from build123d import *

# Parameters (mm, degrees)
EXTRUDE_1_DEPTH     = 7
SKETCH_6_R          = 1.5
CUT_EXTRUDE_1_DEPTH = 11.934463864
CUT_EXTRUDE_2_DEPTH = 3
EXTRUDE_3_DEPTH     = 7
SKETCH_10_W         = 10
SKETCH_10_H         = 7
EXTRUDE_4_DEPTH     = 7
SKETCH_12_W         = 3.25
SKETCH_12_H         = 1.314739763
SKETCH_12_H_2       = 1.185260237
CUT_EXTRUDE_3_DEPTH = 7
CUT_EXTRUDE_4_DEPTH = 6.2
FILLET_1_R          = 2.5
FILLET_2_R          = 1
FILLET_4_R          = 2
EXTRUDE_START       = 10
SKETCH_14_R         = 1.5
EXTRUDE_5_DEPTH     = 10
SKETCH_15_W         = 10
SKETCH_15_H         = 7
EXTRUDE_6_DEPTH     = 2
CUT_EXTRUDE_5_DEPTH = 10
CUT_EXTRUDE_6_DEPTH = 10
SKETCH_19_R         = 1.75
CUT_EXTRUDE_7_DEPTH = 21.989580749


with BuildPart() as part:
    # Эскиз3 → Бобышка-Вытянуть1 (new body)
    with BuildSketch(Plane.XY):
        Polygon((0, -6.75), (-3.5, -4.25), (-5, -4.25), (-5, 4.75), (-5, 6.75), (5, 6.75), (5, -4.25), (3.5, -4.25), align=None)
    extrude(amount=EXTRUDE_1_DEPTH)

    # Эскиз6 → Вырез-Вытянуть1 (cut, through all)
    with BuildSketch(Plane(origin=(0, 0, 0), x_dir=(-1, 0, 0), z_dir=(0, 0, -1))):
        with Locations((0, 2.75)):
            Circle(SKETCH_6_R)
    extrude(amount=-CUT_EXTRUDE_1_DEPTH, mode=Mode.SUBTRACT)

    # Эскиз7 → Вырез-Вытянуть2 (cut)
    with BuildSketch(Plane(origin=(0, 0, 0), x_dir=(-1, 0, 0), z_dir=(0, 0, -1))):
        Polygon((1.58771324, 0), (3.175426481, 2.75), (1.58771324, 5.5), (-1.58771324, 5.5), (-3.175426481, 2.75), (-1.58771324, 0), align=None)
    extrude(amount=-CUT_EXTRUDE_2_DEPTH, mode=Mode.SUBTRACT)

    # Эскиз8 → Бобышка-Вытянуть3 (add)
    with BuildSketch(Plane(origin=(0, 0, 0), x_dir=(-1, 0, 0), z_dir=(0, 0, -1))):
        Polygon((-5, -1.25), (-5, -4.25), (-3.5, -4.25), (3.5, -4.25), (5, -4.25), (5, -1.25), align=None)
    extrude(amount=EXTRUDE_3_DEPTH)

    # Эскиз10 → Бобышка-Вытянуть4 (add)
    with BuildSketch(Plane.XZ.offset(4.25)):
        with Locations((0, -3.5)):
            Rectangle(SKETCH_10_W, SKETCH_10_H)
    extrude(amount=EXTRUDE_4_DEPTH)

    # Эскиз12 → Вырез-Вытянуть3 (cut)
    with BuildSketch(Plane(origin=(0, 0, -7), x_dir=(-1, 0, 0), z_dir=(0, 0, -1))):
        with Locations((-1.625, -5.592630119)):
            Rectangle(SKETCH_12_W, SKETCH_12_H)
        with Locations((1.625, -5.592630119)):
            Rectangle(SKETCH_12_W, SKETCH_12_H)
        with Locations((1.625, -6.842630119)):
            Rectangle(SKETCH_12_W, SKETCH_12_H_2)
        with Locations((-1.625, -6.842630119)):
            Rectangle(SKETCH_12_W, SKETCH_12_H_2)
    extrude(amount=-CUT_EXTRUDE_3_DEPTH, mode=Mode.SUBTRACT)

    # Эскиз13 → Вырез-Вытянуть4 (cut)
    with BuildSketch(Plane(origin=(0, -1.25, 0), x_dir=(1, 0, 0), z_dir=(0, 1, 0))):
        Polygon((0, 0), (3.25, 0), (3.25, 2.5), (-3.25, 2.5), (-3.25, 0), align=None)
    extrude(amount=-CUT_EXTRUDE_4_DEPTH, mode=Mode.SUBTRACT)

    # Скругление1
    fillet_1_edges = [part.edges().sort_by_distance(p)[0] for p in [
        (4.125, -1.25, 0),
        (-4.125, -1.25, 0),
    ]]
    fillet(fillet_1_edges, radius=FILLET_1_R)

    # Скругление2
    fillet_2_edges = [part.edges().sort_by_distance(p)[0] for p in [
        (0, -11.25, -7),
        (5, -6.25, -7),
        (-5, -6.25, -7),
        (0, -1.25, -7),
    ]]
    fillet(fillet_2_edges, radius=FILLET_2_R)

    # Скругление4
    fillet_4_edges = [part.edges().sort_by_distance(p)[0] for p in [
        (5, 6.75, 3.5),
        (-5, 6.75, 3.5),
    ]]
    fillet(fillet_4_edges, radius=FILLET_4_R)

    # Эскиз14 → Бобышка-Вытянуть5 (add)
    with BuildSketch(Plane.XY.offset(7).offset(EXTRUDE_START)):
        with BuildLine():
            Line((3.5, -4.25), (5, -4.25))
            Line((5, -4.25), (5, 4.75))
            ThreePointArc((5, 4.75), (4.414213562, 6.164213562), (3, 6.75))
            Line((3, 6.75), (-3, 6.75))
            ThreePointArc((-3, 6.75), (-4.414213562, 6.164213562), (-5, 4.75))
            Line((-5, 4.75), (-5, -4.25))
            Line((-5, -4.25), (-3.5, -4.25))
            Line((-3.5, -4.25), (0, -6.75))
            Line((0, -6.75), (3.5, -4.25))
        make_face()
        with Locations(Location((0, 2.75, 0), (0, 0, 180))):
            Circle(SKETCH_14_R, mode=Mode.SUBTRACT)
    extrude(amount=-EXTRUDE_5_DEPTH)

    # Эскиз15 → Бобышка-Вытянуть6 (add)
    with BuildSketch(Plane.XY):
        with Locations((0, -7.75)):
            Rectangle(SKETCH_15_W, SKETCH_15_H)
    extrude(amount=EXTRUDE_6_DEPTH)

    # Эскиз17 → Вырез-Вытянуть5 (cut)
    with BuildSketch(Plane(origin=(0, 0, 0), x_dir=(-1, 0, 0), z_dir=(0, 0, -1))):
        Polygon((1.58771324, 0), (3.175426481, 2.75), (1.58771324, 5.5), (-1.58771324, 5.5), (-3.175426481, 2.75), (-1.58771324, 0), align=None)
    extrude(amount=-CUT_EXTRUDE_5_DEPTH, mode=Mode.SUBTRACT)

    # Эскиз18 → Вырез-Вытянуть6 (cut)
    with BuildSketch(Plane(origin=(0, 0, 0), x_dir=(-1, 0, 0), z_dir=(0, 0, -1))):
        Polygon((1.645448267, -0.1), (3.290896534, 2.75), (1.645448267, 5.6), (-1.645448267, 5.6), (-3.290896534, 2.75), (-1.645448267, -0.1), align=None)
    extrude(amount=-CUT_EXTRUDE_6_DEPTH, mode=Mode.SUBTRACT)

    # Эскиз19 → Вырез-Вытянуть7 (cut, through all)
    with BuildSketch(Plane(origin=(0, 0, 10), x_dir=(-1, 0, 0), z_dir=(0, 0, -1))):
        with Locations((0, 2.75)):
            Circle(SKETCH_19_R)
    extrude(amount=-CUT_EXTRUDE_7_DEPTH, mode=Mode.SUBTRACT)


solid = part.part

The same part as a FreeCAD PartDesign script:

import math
import FreeCAD as App
import Part
import Sketcher
from FreeCAD import Vector
Q = App.Units.Quantity


def edges_at(feature, points):
    """Names of the edges that pass closest to the given points."""
    edges = feature.Shape.Edges
    near = lambda p: min(range(len(edges)), key=lambda i: edges[i].distToShape(Part.Vertex(*p))[0])
    return sorted({f"Edge{near(p) + 1}" for p in points})

doc = App.newDocument("Part")
params = doc.addObject("Spreadsheet::Sheet", "Params")
for row, (alias, value) in enumerate([
    ("sketch1_width", "10 mm"),
    ("sketch1_height", "11 mm"),
    ("sketch1_width2", "1.5 mm"),
    ("pad1_length", "7 mm"),
    ("sketch2_diameter", "3 mm"),
    ("pocket2_length", "3 mm"),
    ("sketch4_width", "10 mm"),
    ("sketch4_height", "3 mm"),
    ("pad2_length", "7 mm"),
    ("sketch5_width", "10 mm"),
    ("sketch5_height", "7 mm"),
    ("pad3_length", "7 mm"),
    ("sketch6_width", "6.5 mm"),
    ("sketch6_height", "2.5 mm"),
    ("pocket3_length", "7 mm"),
    ("sketch7_width", "6.5 mm"),
    ("sketch7_height", "2.5 mm"),
    ("pocket4_length", "6.2 mm"),
    ("fillet_radius", "2.5 mm"),
    ("fillet2_radius", "1 mm"),
    ("fillet3_radius", "2 mm"),
    ("sketch8_diameter", "3 mm"),
    ("sketch8_radius", "2 mm"),
    ("sketch8_width", "6 mm"),
    ("sketch8_height", "9 mm"),
    ("sketch8_width2", "1.5 mm"),
    ("pad4_length", "10 mm"),
    ("sketch9_width", "10 mm"),
    ("sketch9_height", "7 mm"),
    ("pad5_length", "2 mm"),
    ("pocket5_length", "10 mm"),
    ("pocket6_length", "10 mm"),
    ("sketch12_diameter", "3.5 mm"),
], start=1):
    params.set(f"A{row}", alias)
    params.set(f"B{row}", "=" + value)
    params.setAlias(f"B{row}", alias)

body = doc.addObject("PartDesign::Body", "Body")

sketch1 = body.newObject("Sketcher::SketchObject", "Sketch")
sketch1.AttachmentSupport = (doc.getObject("XY_Plane"), [""])
sketch1.MapMode = "FlatFace"
sketch1.addGeometry([
    Part.LineSegment(Vector(-3.5, -4.2, 0), Vector(0, -6.8, 0)),
    Part.LineSegment(Vector(0, -6.8, 0), Vector(3.5, -4.2, 0)),
    Part.LineSegment(Vector(3.5, -4.2, 0), Vector(5, -4.2, 0)),
    Part.LineSegment(Vector(5, -4.2, 0), Vector(5, 6.8, 0)),
    Part.LineSegment(Vector(5, 6.8, 0), Vector(-5, 6.8, 0)),
    Part.LineSegment(Vector(-5, 6.8, 0), Vector(-5, -4.2, 0)),
    Part.LineSegment(Vector(-5, -4.2, 0), Vector(-3.5, -4.2, 0)),
], False)
sketch1.addConstraint([
    Sketcher.Constraint("Coincident", 0, 2, 1, 1),
    Sketcher.Constraint("Coincident", 1, 2, 2, 1),
    Sketcher.Constraint("Coincident", 2, 2, 3, 1),
    Sketcher.Constraint("Coincident", 3, 2, 4, 1),
    Sketcher.Constraint("Coincident", 4, 2, 5, 1),
    Sketcher.Constraint("Coincident", 5, 2, 6, 1),
    Sketcher.Constraint("Coincident", 6, 2, 0, 1),
    Sketcher.Constraint("Horizontal", 2),
    Sketcher.Constraint("Vertical", 3),
    Sketcher.Constraint("Horizontal", 4),
    Sketcher.Constraint("Vertical", 5),
    Sketcher.Constraint("Horizontal", 6),
    Sketcher.Constraint("Symmetric", 2, 2, 5, 2, -2),
    Sketcher.Constraint("PointOnObject", 0, 2, -2),
    Sketcher.Constraint("Equal", 2, 6),
    Sketcher.Constraint("DistanceX", 4, 2, 4, 1, Q("10 mm")),
    Sketcher.Constraint("DistanceY", 3, 1, 3, 2, Q("11 mm")),
    Sketcher.Constraint("DistanceX", 2, 1, 2, 2, Q("1.5 mm")),
    Sketcher.Constraint("DistanceY", 0, 2, 1, 2, Q("2.5 mm")),
    Sketcher.Constraint("DistanceY", 0, 2, -1, 1, Q("6.75 mm")),
])
sketch1.setExpression("Constraints[15]", "Params.sketch1_width")
sketch1.setExpression("Constraints[16]", "Params.sketch1_height")
sketch1.setExpression("Constraints[17]", "Params.sketch1_width2")
pad1 = body.newObject("PartDesign::Pad", "Pad")
pad1.Profile = sketch1
pad1.setExpression("Length", "Params.pad1_length")

sketch2 = body.newObject("Sketcher::SketchObject", "Sketch001")
sketch2.AttachmentSupport = (doc.getObject("XY_Plane"), [""])
sketch2.MapMode = "FlatFace"
sketch2.addGeometry(Part.Circle(Vector(0, 2.8, 0), Vector(0, 0, 1), 1.5), False)
sketch2.addConstraint([
    Sketcher.Constraint("PointOnObject", 0, 3, -2),
    Sketcher.Constraint("Diameter", 0, Q("3 mm")),
    Sketcher.Constraint("DistanceY", -1, 1, 0, 3, Q("2.75 mm")),
])
sketch2.setExpression("Constraints[1]", "Params.sketch2_diameter")
pocket1 = body.newObject("PartDesign::Pocket", "Pocket")
pocket1.Profile = sketch2
pocket1.Type = "ThroughAll"
pocket1.Reversed = True

sketch3 = body.newObject("Sketcher::SketchObject", "Sketch002")
sketch3.AttachmentSupport = (doc.getObject("XY_Plane"), [""])
sketch3.MapMode = "FlatFace"
sketch3.addGeometry([
    Part.LineSegment(Vector(-1.6, 0, 0), Vector(-3.2, 2.8, 0)),
    Part.LineSegment(Vector(-3.2, 2.8, 0), Vector(-1.6, 5.5, 0)),
    Part.LineSegment(Vector(-1.6, 5.5, 0), Vector(1.6, 5.5, 0)),
    Part.LineSegment(Vector(1.6, 5.5, 0), Vector(3.2, 2.8, 0)),
    Part.LineSegment(Vector(3.2, 2.8, 0), Vector(1.6, 0, 0)),
    Part.LineSegment(Vector(1.6, 0, 0), Vector(-1.6, 0, 0)),
], False)
sketch3.addConstraint([
    Sketcher.Constraint("Coincident", 0, 2, 1, 1),
    Sketcher.Constraint("Coincident", 1, 2, 2, 1),
    Sketcher.Constraint("Coincident", 2, 2, 3, 1),
    Sketcher.Constraint("Coincident", 3, 2, 4, 1),
    Sketcher.Constraint("Coincident", 4, 2, 5, 1),
    Sketcher.Constraint("Coincident", 5, 2, 0, 1),
    Sketcher.Constraint("Horizontal", 2),
    Sketcher.Constraint("Horizontal", 5),
    Sketcher.Constraint("Symmetric", 4, 2, 5, 2, -1, 1),
    Sketcher.Constraint("Symmetric", 0, 2, 3, 2, -2),
    Sketcher.Constraint("Parallel", 0, 3),
    Sketcher.Constraint("Parallel", 1, 4),
    Sketcher.Constraint("Vertical", 2, 2, 4, 2),
    Sketcher.Constraint("Angle", 0, Q("120 deg")),
    Sketcher.Constraint("DistanceY", -1, 1, 1, 2, Q("5.5 mm")),
    Sketcher.Constraint("DistanceX", 2, 1, 2, 2, Q("3.175426 mm")),
])
pocket2 = body.newObject("PartDesign::Pocket", "Pocket001")
pocket2.Profile = sketch3
pocket2.setExpression("Length", "Params.pocket2_length")
pocket2.Reversed = True

sketch4 = body.newObject("Sketcher::SketchObject", "Sketch003")
sketch4.AttachmentSupport = (doc.getObject("XY_Plane"), [""])
sketch4.MapMode = "FlatFace"
sketch4.addGeometry([
    Part.LineSegment(Vector(5, -1.2, 0), Vector(5, -4.2, 0)),
    Part.LineSegment(Vector(5, -4.2, 0), Vector(-5, -4.2, 0)),
    Part.LineSegment(Vector(-5, -4.2, 0), Vector(-5, -1.2, 0)),
    Part.LineSegment(Vector(-5, -1.2, 0), Vector(5, -1.2, 0)),
], False)
sketch4.addConstraint([
    Sketcher.Constraint("Coincident", 0, 2, 1, 1),
    Sketcher.Constraint("Coincident", 1, 2, 2, 1),
    Sketcher.Constraint("Coincident", 2, 2, 3, 1),
    Sketcher.Constraint("Coincident", 3, 2, 0, 1),
    Sketcher.Constraint("Vertical", 0),
    Sketcher.Constraint("Horizontal", 1),
    Sketcher.Constraint("Vertical", 2),
    Sketcher.Constraint("Horizontal", 3),
    Sketcher.Constraint("DistanceX", 1, 2, 1, 1, Q("10 mm")),
    Sketcher.Constraint("DistanceY", 0, 2, 0, 1, Q("3 mm")),
    Sketcher.Constraint("DistanceX", -1, 1, 0, 2, Q("5 mm")),
    Sketcher.Constraint("DistanceY", 0, 2, -1, 1, Q("4.25 mm")),
])
sketch4.setExpression("Constraints[8]", "Params.sketch4_width")
sketch4.setExpression("Constraints[9]", "Params.sketch4_height")
pad2 = body.newObject("PartDesign::Pad", "Pad001")
pad2.Profile = sketch4
pad2.setExpression("Length", "Params.pad2_length")
pad2.Reversed = True

sketch5 = body.newObject("Sketcher::SketchObject", "Sketch004")
sketch5.AttachmentSupport = (doc.getObject("XZ_Plane"), [""])
sketch5.MapMode = "FlatFace"
sketch5.AttachmentOffset = App.Placement(Vector(0, 0, 4.25), App.Rotation())
sketch5.addGeometry([
    Part.LineSegment(Vector(-5, 0, 0), Vector(-5, -7, 0)),
    Part.LineSegment(Vector(-5, -7, 0), Vector(5, -7, 0)),
    Part.LineSegment(Vector(5, -7, 0), Vector(5, 0, 0)),
    Part.LineSegment(Vector(5, 0, 0), Vector(-5, 0, 0)),
], False)
sketch5.addConstraint([
    Sketcher.Constraint("Coincident", 0, 2, 1, 1),
    Sketcher.Constraint("Coincident", 1, 2, 2, 1),
    Sketcher.Constraint("Coincident", 2, 2, 3, 1),
    Sketcher.Constraint("Coincident", 3, 2, 0, 1),
    Sketcher.Constraint("Vertical", 0),
    Sketcher.Constraint("Horizontal", 1),
    Sketcher.Constraint("Vertical", 2),
    Sketcher.Constraint("Horizontal", 3),
    Sketcher.Constraint("Symmetric", 2, 2, 3, 2, -1, 1),
    Sketcher.Constraint("DistanceX", 1, 1, 1, 2, Q("10 mm")),
    Sketcher.Constraint("DistanceY", 0, 2, 0, 1, Q("7 mm")),
])
sketch5.setExpression("Constraints[9]", "Params.sketch5_width")
sketch5.setExpression("Constraints[10]", "Params.sketch5_height")
pad3 = body.newObject("PartDesign::Pad", "Pad002")
pad3.Profile = sketch5
pad3.setExpression("Length", "Params.pad3_length")

sketch6 = body.newObject("Sketcher::SketchObject", "Sketch005")
sketch6.AttachmentSupport = (doc.getObject("XY_Plane"), [""])
sketch6.MapMode = "FlatFace"
sketch6.AttachmentOffset = App.Placement(Vector(0, 0, -7), App.Rotation())
sketch6.addGeometry([
    Part.LineSegment(Vector(3.2, -4.9, 0), Vector(3.2, -7.4, 0)),
    Part.LineSegment(Vector(3.2, -7.4, 0), Vector(-3.2, -7.4, 0)),
    Part.LineSegment(Vector(-3.2, -7.4, 0), Vector(-3.2, -4.9, 0)),
    Part.LineSegment(Vector(-3.2, -4.9, 0), Vector(3.2, -4.9, 0)),
], False)
sketch6.addConstraint([
    Sketcher.Constraint("Coincident", 0, 2, 1, 1),
    Sketcher.Constraint("Coincident", 1, 2, 2, 1),
    Sketcher.Constraint("Coincident", 2, 2, 3, 1),
    Sketcher.Constraint("Coincident", 3, 2, 0, 1),
    Sketcher.Constraint("Vertical", 0),
    Sketcher.Constraint("Horizontal", 1),
    Sketcher.Constraint("Vertical", 2),
    Sketcher.Constraint("Horizontal", 3),
    Sketcher.Constraint("DistanceX", 1, 2, 1, 1, Q("6.5 mm")),
    Sketcher.Constraint("DistanceY", 0, 2, 0, 1, Q("2.5 mm")),
    Sketcher.Constraint("DistanceX", -1, 1, 0, 2, Q("3.25 mm")),
    Sketcher.Constraint("DistanceY", 0, 2, -1, 1, Q("7.43526 mm")),
])
sketch6.setExpression("Constraints[8]", "Params.sketch6_width")
sketch6.setExpression("Constraints[9]", "Params.sketch6_height")
pocket3 = body.newObject("PartDesign::Pocket", "Pocket002")
pocket3.Profile = sketch6
pocket3.setExpression("Length", "Params.pocket3_length")
pocket3.Reversed = True

sketch7 = body.newObject("Sketcher::SketchObject", "Sketch006")
sketch7.AttachmentSupport = (doc.getObject("XZ_Plane"), [""])
sketch7.MapMode = "FlatFace"
sketch7.AttachmentOffset = App.Placement(Vector(0, 0, 1.25), App.Rotation())
sketch7.addGeometry([
    Part.LineSegment(Vector(3.2, 0, 0), Vector(3.2, -2.5, 0)),
    Part.LineSegment(Vector(3.2, -2.5, 0), Vector(-3.2, -2.5, 0)),
    Part.LineSegment(Vector(-3.2, -2.5, 0), Vector(-3.2, 0, 0)),
    Part.LineSegment(Vector(-3.2, 0, 0), Vector(3.2, 0, 0)),
], False)
sketch7.addConstraint([
    Sketcher.Constraint("Coincident", 0, 2, 1, 1),
    Sketcher.Constraint("Coincident", 1, 2, 2, 1),
    Sketcher.Constraint("Coincident", 2, 2, 3, 1),
    Sketcher.Constraint("Coincident", 3, 2, 0, 1),
    Sketcher.Constraint("Vertical", 0),
    Sketcher.Constraint("Horizontal", 1),
    Sketcher.Constraint("Vertical", 2),
    Sketcher.Constraint("Horizontal", 3),
    Sketcher.Constraint("Symmetric", 2, 2, 3, 2, -1, 1),
    Sketcher.Constraint("DistanceX", 1, 2, 1, 1, Q("6.5 mm")),
    Sketcher.Constraint("DistanceY", 0, 2, 0, 1, Q("2.5 mm")),
])
sketch7.setExpression("Constraints[9]", "Params.sketch7_width")
sketch7.setExpression("Constraints[10]", "Params.sketch7_height")
pocket4 = body.newObject("PartDesign::Pocket", "Pocket003")
pocket4.Profile = sketch7
pocket4.setExpression("Length", "Params.pocket4_length")
pocket4.Reversed = True
doc.recompute()

fillet = body.newObject("PartDesign::Fillet", "Fillet")
fillet.Base = (pocket4, edges_at(pocket4, [(4.125, -1.25, 0), (-4.125, -1.25, 0)]))
fillet.setExpression("Radius", "Params.fillet_radius")
doc.recompute()

fillet2 = body.newObject("PartDesign::Fillet", "Fillet001")
fillet2.Base = (fillet, edges_at(fillet, [
    (0, -11.25, -7),
    (5, -6.25, -7),
    (-5, -6.25, -7),
    (0, -1.25, -7),
]))
fillet2.setExpression("Radius", "Params.fillet2_radius")
doc.recompute()

fillet3 = body.newObject("PartDesign::Fillet", "Fillet002")
fillet3.Base = (fillet2, edges_at(fillet2, [(5, 6.75, 3.5), (-5, 6.75, 3.5)]))
fillet3.setExpression("Radius", "Params.fillet3_radius")

sketch8 = body.newObject("Sketcher::SketchObject", "Sketch007")
sketch8.AttachmentSupport = (doc.getObject("XY_Plane"), [""])
sketch8.MapMode = "FlatFace"
sketch8.AttachmentOffset = App.Placement(Vector(0, 0, 17), App.Rotation())
sketch8.addGeometry([
    Part.LineSegment(Vector(3.5, -4.2, 0), Vector(5, -4.2, 0)),
    Part.LineSegment(Vector(5, -4.2, 0), Vector(5, 4.8, 0)),
    Part.ArcOfCircle(Part.Circle(Vector(3, 4.7, 0), Vector(0, 0, 1), 2), math.radians(0), math.radians(90)),
    Part.LineSegment(Vector(3, 6.8, 0), Vector(-3, 6.8, 0)),
    Part.ArcOfCircle(Part.Circle(Vector(-3, 4.7, 0), Vector(0, 0, 1), 2), math.radians(90), math.radians(180)),
    Part.LineSegment(Vector(-5, 4.8, 0), Vector(-5, -4.2, 0)),
    Part.LineSegment(Vector(-5, -4.2, 0), Vector(-3.5, -4.2, 0)),
    Part.LineSegment(Vector(-3.5, -4.2, 0), Vector(0, -6.8, 0)),
    Part.LineSegment(Vector(0, -6.8, 0), Vector(3.5, -4.2, 0)),
    Part.Circle(Vector(0, 2.8, 0), Vector(0, 0, 1), 1.5),
], False)
sketch8.addConstraint([
    Sketcher.Constraint("Coincident", 0, 2, 1, 1),
    Sketcher.Constraint("Tangent", 1, 2, 2, 1),
    Sketcher.Constraint("Tangent", 2, 2, 3, 1),
    Sketcher.Constraint("Tangent", 3, 2, 4, 1),
    Sketcher.Constraint("Tangent", 4, 2, 5, 1),
    Sketcher.Constraint("Coincident", 5, 2, 6, 1),
    Sketcher.Constraint("Coincident", 6, 2, 7, 1),
    Sketcher.Constraint("Coincident", 7, 2, 8, 1),
    Sketcher.Constraint("Coincident", 8, 2, 0, 1),
    Sketcher.Constraint("Horizontal", 0),
    Sketcher.Constraint("Vertical", 1),
    Sketcher.Constraint("Horizontal", 3),
    Sketcher.Constraint("Vertical", 5),
    Sketcher.Constraint("Horizontal", 6),
    Sketcher.Constraint("Equal", 2, 4),
    Sketcher.Constraint("Symmetric", 0, 2, 5, 2, -2),
    Sketcher.Constraint("PointOnObject", 9, 3, -2),
    Sketcher.Constraint("PointOnObject", 7, 2, -2),
    Sketcher.Constraint("Equal", 0, 6),
    Sketcher.Constraint("Diameter", 9, Q("3 mm")),
    Sketcher.Constraint("Radius", 2, Q("2 mm")),
    Sketcher.Constraint("DistanceX", 3, 2, 3, 1, Q("6 mm")),
    Sketcher.Constraint("DistanceY", 1, 1, 1, 2, Q("9 mm")),
    Sketcher.Constraint("DistanceX", 0, 1, 0, 2, Q("1.5 mm")),
    Sketcher.Constraint("DistanceY", 9, 3, 2, 3, Q("2 mm")),
    Sketcher.Constraint("DistanceY", 7, 2, 6, 2, Q("2.5 mm")),
    Sketcher.Constraint("DistanceY", -1, 1, 2, 3, Q("4.75 mm")),
])
sketch8.setExpression("Constraints[19]", "Params.sketch8_diameter")
sketch8.setExpression("Constraints[20]", "Params.sketch8_radius")
sketch8.setExpression("Constraints[21]", "Params.sketch8_width")
sketch8.setExpression("Constraints[22]", "Params.sketch8_height")
sketch8.setExpression("Constraints[23]", "Params.sketch8_width2")
pad4 = body.newObject("PartDesign::Pad", "Pad003")
pad4.Profile = sketch8
pad4.setExpression("Length", "Params.pad4_length")
pad4.Reversed = True

sketch9 = body.newObject("Sketcher::SketchObject", "Sketch008")
sketch9.AttachmentSupport = (doc.getObject("XY_Plane"), [""])
sketch9.MapMode = "FlatFace"
sketch9.addGeometry([
    Part.LineSegment(Vector(-5, -4, 0), Vector(-5, -11, 0)),
    Part.LineSegment(Vector(-5, -11, 0), Vector(5, -11, 0)),
    Part.LineSegment(Vector(5, -11, 0), Vector(5, -4, 0)),
    Part.LineSegment(Vector(5, -4, 0), Vector(-5, -4, 0)),
], False)
sketch9.addConstraint([
    Sketcher.Constraint("Coincident", 0, 2, 1, 1),
    Sketcher.Constraint("Coincident", 1, 2, 2, 1),
    Sketcher.Constraint("Coincident", 2, 2, 3, 1),
    Sketcher.Constraint("Coincident", 3, 2, 0, 1),
    Sketcher.Constraint("Vertical", 0),
    Sketcher.Constraint("Horizontal", 1),
    Sketcher.Constraint("Vertical", 2),
    Sketcher.Constraint("Horizontal", 3),
    Sketcher.Constraint("DistanceX", 1, 1, 1, 2, Q("10 mm")),
    Sketcher.Constraint("DistanceY", 0, 2, 0, 1, Q("7 mm")),
    Sketcher.Constraint("DistanceX", 0, 2, -1, 1, Q("5 mm")),
    Sketcher.Constraint("DistanceY", 0, 2, -1, 1, Q("11.25 mm")),
])
sketch9.setExpression("Constraints[8]", "Params.sketch9_width")
sketch9.setExpression("Constraints[9]", "Params.sketch9_height")
pad5 = body.newObject("PartDesign::Pad", "Pad004")
pad5.Profile = sketch9
pad5.setExpression("Length", "Params.pad5_length")

sketch10 = body.newObject("Sketcher::SketchObject", "Sketch009")
sketch10.AttachmentSupport = (doc.getObject("XY_Plane"), [""])
sketch10.MapMode = "FlatFace"
sketch10.addGeometry([
    Part.LineSegment(Vector(-1.6, 0, 0), Vector(-3.2, 2.8, 0)),
    Part.LineSegment(Vector(-3.2, 2.8, 0), Vector(-1.6, 5.5, 0)),
    Part.LineSegment(Vector(-1.6, 5.5, 0), Vector(1.6, 5.5, 0)),
    Part.LineSegment(Vector(1.6, 5.5, 0), Vector(3.2, 2.8, 0)),
    Part.LineSegment(Vector(3.2, 2.8, 0), Vector(1.6, 0, 0)),
    Part.LineSegment(Vector(1.6, 0, 0), Vector(-1.6, 0, 0)),
], False)
sketch10.addConstraint([
    Sketcher.Constraint("Coincident", 0, 2, 1, 1),
    Sketcher.Constraint("Coincident", 1, 2, 2, 1),
    Sketcher.Constraint("Coincident", 2, 2, 3, 1),
    Sketcher.Constraint("Coincident", 3, 2, 4, 1),
    Sketcher.Constraint("Coincident", 4, 2, 5, 1),
    Sketcher.Constraint("Coincident", 5, 2, 0, 1),
    Sketcher.Constraint("Horizontal", 2),
    Sketcher.Constraint("Horizontal", 5),
    Sketcher.Constraint("Symmetric", 4, 2, 5, 2, -1, 1),
    Sketcher.Constraint("Symmetric", 0, 2, 3, 2, -2),
    Sketcher.Constraint("Parallel", 0, 3),
    Sketcher.Constraint("Parallel", 1, 4),
    Sketcher.Constraint("Vertical", 2, 2, 4, 2),
    Sketcher.Constraint("Angle", 0, Q("120 deg")),
    Sketcher.Constraint("DistanceY", -1, 1, 1, 2, Q("5.5 mm")),
    Sketcher.Constraint("DistanceX", 2, 1, 2, 2, Q("3.175426 mm")),
])
pocket5 = body.newObject("PartDesign::Pocket", "Pocket004")
pocket5.Profile = sketch10
pocket5.setExpression("Length", "Params.pocket5_length")
pocket5.Reversed = True

sketch11 = body.newObject("Sketcher::SketchObject", "Sketch010")
sketch11.AttachmentSupport = (doc.getObject("XY_Plane"), [""])
sketch11.MapMode = "FlatFace"
sketch11.addGeometry([
    Part.LineSegment(Vector(-1.6, -0.1, 0), Vector(-3.3, 2.8, 0)),
    Part.LineSegment(Vector(-3.3, 2.8, 0), Vector(-1.6, 5.6, 0)),
    Part.LineSegment(Vector(-1.6, 5.6, 0), Vector(1.6, 5.6, 0)),
    Part.LineSegment(Vector(1.6, 5.6, 0), Vector(3.3, 2.8, 0)),
    Part.LineSegment(Vector(3.3, 2.8, 0), Vector(1.6, -0.1, 0)),
    Part.LineSegment(Vector(1.6, -0.1, 0), Vector(-1.6, -0.1, 0)),
], False)
sketch11.addConstraint([
    Sketcher.Constraint("Coincident", 0, 2, 1, 1),
    Sketcher.Constraint("Coincident", 1, 2, 2, 1),
    Sketcher.Constraint("Coincident", 2, 2, 3, 1),
    Sketcher.Constraint("Coincident", 3, 2, 4, 1),
    Sketcher.Constraint("Coincident", 4, 2, 5, 1),
    Sketcher.Constraint("Coincident", 5, 2, 0, 1),
    Sketcher.Constraint("Horizontal", 2),
    Sketcher.Constraint("Horizontal", 5),
    Sketcher.Constraint("Symmetric", 0, 2, 3, 2, -2),
    Sketcher.Constraint("Parallel", 0, 3),
    Sketcher.Constraint("Parallel", 1, 4),
    Sketcher.Constraint("Vertical", 2, 2, 4, 2),
    Sketcher.Constraint("Vertical", 1, 2, 5, 2),
    Sketcher.Constraint("Angle", 0, Q("120 deg")),
    Sketcher.Constraint("DistanceY", -1, 1, 1, 2, Q("5.6 mm")),
    Sketcher.Constraint("DistanceY", 4, 2, -1, 1, Q("0.1 mm")),
    Sketcher.Constraint("DistanceX", 2, 1, 2, 2, Q("3.290897 mm")),
])
pocket6 = body.newObject("PartDesign::Pocket", "Pocket005")
pocket6.Profile = sketch11
pocket6.setExpression("Length", "Params.pocket6_length")
pocket6.Reversed = True

sketch12 = body.newObject("Sketcher::SketchObject", "Sketch011")
sketch12.AttachmentSupport = (doc.getObject("XY_Plane"), [""])
sketch12.MapMode = "FlatFace"
sketch12.AttachmentOffset = App.Placement(Vector(0, 0, 10), App.Rotation())
sketch12.addGeometry(Part.Circle(Vector(0, 2.8, 0), Vector(0, 0, 1), 1.8), False)
sketch12.addConstraint([
    Sketcher.Constraint("PointOnObject", 0, 3, -2),
    Sketcher.Constraint("Diameter", 0, Q("3.5 mm")),
    Sketcher.Constraint("DistanceY", -1, 1, 0, 3, Q("2.75 mm")),
])
sketch12.setExpression("Constraints[1]", "Params.sketch12_diameter")
pocket7 = body.newObject("PartDesign::Pocket", "Pocket006")
pocket7.Profile = sketch12
pocket7.Type = "ThroughAll"
pocket7.Reversed = True

doc.recompute()
